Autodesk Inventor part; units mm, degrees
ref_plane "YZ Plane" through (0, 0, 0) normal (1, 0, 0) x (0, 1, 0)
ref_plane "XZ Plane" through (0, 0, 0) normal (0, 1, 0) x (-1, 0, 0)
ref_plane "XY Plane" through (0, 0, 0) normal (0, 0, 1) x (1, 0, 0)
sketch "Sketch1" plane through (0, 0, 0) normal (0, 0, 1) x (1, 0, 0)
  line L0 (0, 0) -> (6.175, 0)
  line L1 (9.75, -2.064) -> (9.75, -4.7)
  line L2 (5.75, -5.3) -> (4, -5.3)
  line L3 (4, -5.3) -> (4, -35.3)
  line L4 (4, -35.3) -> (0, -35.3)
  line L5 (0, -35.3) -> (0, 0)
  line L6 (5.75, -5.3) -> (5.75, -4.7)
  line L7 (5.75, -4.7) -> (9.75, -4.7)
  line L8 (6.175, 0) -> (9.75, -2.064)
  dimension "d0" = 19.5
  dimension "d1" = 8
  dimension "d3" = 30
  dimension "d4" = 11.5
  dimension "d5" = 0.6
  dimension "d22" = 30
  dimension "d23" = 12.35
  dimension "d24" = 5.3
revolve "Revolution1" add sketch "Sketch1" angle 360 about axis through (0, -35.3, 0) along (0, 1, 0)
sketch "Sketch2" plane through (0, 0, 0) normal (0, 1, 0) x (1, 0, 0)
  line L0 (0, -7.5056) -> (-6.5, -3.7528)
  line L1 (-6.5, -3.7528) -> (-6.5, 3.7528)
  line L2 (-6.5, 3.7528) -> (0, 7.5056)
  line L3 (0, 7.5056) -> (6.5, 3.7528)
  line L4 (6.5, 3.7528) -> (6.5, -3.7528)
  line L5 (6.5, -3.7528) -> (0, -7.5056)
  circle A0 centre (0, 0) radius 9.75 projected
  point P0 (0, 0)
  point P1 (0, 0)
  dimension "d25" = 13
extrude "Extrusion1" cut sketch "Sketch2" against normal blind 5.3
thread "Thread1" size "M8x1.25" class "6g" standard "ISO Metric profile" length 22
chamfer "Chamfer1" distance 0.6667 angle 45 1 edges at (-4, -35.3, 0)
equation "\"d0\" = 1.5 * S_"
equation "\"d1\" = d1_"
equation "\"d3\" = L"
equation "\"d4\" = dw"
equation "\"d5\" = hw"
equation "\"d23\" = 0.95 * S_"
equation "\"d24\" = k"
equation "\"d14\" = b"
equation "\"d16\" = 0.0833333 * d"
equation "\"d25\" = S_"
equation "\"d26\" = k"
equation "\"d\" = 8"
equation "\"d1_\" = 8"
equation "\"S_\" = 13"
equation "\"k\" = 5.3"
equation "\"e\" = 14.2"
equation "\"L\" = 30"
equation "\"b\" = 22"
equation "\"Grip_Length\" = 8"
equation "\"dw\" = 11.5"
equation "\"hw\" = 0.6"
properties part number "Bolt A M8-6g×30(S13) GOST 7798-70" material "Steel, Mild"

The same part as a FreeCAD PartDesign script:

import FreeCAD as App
import Part
import Sketcher
Q = App.Units.Quantity


def edges_at(feature, points):
    """Names of the edges that pass closest to the given points."""
    edges = feature.Shape.Edges
    near = lambda p: min(range(len(edges)), key=lambda i: edges[i].distToShape(Part.Vertex(*p))[0])
    return sorted({f"Edge{near(p) + 1}" for p in points})


def add_polygon(sketch, points):
    """Adds a closed chain of lines whose ends are joined by coincident constraints."""
    first, n = sketch.GeometryCount, len(points)
    for a, b in zip(points, points[1:] + points[:1]):
        sketch.addGeometry(Part.LineSegment(App.Vector(*a, 0), App.Vector(*b, 0)), False)
    for i in range(n):
        sketch.addConstraint(Sketcher.Constraint("Coincident", first + i, 2, first + (i + 1) % n, 1))

doc = App.newDocument("Part")
body = doc.addObject("PartDesign::Body", "Body")

# Sketch on XY plane
sketch1 = body.newObject("Sketcher::SketchObject", "Sketch")
sketch1.AttachmentSupport = (doc.getObject("XY_Plane"), [""])
sketch1.MapMode = "FlatFace"
add_polygon(sketch1, [(6.2, 0), (0, 0), (0, -35.3), (4, -35.3), (4, -5.3), (5.8, -5.3), (5.8, -4.7), (9.8, -4.7), (9.8, -2.1)])  # lines 0-8
sketch1.addConstraint([
    Sketcher.Constraint("Horizontal", 0),
    Sketcher.Constraint("Vertical", 1),
    Sketcher.Constraint("Horizontal", 2),
    Sketcher.Constraint("Vertical", 3),
    Sketcher.Constraint("Horizontal", 4),
    Sketcher.Constraint("Vertical", 5),
    Sketcher.Constraint("Horizontal", 6),
    Sketcher.Constraint("Vertical", 7),
    Sketcher.Constraint("Coincident", 0, 2, -1, 1),
    Sketcher.Constraint("Equal", 2, 6),
    Sketcher.Constraint("DistanceY", 3, 1, 3, 2, Q("30 mm")),
    Sketcher.Constraint("DistanceY", 5, 1, 5, 2, Q("0.6 mm")),
    Sketcher.Constraint("DistanceY", 3, 2, -1, 1, Q("5.3 mm")),
    Sketcher.Constraint("DistanceX", 2, 1, 2, 2, Q("4 mm")),
    Sketcher.Constraint("Angle", 8, Q("150.0003 deg")),
    Sketcher.Constraint("DistanceX", 4, 1, 4, 2, Q("1.75 mm")),
    Sketcher.Constraint("DistanceX", 0, 2, 0, 1, Q("6.175 mm")),
])
revolution = body.newObject("PartDesign::Revolution", "Revolution")
revolution.Profile = sketch1
revolution.ReferenceAxis = (sketch1, ["V_Axis"])
revolution.Angle = 360

# Sketch on XZ plane
sketch2 = body.newObject("Sketcher::SketchObject", "Sketch001")
sketch2.AttachmentSupport = (doc.getObject("XZ_Plane"), [""])
sketch2.MapMode = "FlatFace"
sketch2.addGeometry(Part.Circle(App.Vector(0, 0, 0), App.Vector(0, 0, 1), 10), False)  # 0
add_polygon(sketch2, [(6, 4), (0, 8), (-6, 4), (-6, -4), (0, -8), (6, -4)])  # lines 1-6
sketch2.addConstraint([
    Sketcher.Constraint("Vertical", 3),
    Sketcher.Constraint("Vertical", 6),
    Sketcher.Constraint("Coincident", 0, 3, -1, 1),
    Sketcher.Constraint("Symmetric", 1, 2, 4, 2, -1, 1),
    Sketcher.Constraint("Symmetric", 2, 2, 5, 2, -1, 1),
    Sketcher.Constraint("PointOnObject", 1, 2, -2),
    Sketcher.Constraint("Parallel", 1, 4),
    Sketcher.Constraint("Horizontal", 3, 2, 5, 2),
    Sketcher.Constraint("DistanceX", 3, 2, 5, 2, Q("13 mm")),
    Sketcher.Constraint("Diameter", 0, Q("19.5 mm")),
    Sketcher.Constraint("Angle", 1, Q("149.9998 deg")),
    Sketcher.Constraint("DistanceY", 3, 2, 3, 1, Q("7.5056 mm")),
])
pocket1 = body.newObject("PartDesign::Pocket", "Pocket")
pocket1.Profile = sketch2
pocket1.Length = 5.3
pocket1.Reversed = True
doc.recompute()

chamfer = body.newObject("PartDesign::Chamfer", "Chamfer")
chamfer.Base = (pocket1, edges_at(pocket1, [(-4, -35.3, 0)]))
chamfer.Size = 0.6667

doc.recompute()
